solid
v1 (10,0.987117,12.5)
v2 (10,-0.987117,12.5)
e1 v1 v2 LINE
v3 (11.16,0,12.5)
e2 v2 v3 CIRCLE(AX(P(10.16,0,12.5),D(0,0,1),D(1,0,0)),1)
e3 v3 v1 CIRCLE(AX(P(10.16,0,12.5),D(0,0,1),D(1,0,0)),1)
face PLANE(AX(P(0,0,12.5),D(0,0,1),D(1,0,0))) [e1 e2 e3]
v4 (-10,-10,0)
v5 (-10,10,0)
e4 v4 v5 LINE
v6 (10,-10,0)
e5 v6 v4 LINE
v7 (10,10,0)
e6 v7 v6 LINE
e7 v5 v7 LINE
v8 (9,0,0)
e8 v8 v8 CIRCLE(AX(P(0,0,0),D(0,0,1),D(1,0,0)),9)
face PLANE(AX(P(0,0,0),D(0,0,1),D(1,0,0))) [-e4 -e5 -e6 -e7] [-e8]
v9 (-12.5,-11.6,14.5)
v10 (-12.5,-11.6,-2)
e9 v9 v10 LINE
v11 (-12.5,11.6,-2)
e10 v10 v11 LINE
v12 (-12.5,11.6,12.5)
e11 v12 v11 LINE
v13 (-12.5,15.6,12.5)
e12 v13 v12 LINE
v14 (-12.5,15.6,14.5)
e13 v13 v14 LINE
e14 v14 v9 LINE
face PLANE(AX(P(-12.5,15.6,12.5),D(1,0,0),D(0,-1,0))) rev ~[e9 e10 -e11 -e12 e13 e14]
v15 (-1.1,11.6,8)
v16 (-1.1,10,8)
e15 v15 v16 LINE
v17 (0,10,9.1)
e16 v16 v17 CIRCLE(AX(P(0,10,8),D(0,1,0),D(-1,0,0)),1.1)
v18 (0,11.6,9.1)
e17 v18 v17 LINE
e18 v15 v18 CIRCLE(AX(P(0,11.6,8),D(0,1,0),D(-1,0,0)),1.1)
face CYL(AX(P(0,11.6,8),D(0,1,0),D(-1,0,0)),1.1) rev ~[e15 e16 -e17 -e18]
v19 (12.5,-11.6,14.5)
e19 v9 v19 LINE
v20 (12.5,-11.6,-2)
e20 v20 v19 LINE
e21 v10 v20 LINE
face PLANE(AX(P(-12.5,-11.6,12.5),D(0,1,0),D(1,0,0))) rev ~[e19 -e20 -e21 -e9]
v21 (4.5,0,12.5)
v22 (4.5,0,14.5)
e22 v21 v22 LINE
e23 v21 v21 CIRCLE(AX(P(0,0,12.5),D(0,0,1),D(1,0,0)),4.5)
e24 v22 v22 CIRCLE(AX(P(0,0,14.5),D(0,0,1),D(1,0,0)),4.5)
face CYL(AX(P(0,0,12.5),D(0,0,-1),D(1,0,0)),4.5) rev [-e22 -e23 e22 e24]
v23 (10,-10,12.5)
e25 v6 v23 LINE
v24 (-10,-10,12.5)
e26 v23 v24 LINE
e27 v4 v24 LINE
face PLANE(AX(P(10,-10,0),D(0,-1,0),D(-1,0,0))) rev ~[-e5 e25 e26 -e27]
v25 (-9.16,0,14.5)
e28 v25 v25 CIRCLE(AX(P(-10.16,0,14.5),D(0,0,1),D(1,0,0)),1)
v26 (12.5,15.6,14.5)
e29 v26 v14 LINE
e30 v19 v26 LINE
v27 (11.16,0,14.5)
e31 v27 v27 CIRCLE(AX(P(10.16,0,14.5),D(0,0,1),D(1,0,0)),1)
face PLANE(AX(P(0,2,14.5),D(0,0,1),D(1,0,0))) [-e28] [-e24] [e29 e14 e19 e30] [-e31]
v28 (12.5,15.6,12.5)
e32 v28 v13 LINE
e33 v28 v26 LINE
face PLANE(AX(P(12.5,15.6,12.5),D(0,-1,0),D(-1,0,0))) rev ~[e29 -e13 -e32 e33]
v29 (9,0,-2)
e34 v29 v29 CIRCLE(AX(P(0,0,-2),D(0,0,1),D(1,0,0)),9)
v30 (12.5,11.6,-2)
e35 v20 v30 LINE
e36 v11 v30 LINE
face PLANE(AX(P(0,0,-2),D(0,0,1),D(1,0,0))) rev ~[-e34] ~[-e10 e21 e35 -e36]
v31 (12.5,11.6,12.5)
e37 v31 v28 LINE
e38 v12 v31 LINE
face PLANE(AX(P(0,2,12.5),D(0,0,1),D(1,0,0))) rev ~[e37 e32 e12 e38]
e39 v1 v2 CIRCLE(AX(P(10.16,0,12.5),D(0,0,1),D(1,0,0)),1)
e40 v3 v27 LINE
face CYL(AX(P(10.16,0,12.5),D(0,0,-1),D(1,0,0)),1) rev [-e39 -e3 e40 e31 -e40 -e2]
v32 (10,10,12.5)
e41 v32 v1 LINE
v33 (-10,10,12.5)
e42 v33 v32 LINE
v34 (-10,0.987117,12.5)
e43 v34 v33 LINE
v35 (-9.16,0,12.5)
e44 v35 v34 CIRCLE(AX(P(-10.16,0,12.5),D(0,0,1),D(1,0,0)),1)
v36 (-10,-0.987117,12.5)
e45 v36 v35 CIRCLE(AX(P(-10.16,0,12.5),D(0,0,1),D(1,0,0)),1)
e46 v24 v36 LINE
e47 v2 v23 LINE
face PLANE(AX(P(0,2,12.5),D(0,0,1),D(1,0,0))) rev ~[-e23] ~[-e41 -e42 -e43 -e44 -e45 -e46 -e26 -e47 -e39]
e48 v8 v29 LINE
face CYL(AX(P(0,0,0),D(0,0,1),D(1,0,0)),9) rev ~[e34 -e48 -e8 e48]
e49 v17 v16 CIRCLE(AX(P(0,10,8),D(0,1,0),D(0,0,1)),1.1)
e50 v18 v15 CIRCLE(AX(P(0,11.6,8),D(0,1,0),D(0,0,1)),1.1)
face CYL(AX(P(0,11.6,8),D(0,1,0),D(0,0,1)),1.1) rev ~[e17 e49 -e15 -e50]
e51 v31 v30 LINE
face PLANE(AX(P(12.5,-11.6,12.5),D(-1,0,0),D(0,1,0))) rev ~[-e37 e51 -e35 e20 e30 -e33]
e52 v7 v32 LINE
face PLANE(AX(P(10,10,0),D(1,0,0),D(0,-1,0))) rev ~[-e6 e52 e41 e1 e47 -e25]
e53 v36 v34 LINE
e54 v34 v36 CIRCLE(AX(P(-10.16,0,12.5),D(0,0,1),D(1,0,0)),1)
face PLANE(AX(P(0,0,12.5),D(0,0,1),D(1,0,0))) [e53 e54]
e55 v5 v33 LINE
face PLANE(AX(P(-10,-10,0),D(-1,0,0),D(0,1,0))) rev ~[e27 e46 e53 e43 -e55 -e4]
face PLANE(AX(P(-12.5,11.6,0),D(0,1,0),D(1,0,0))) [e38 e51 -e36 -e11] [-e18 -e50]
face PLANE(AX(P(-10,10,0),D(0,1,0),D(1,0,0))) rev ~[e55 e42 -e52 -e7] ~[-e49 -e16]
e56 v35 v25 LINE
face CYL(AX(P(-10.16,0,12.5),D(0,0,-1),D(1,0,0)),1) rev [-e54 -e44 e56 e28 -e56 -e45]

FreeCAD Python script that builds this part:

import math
import FreeCAD as App
import Part
import Sketcher

doc = App.newDocument("Part")
body = doc.addObject("PartDesign::Body", "Body")

sketch1 = body.newObject("Sketcher::SketchObject", "Sketch")
sketch1.AttachmentSupport = (doc.getObject("XY_Plane"), [""])
sketch1.MapMode = "FlatFace"
sketch1.addGeometry(Part.LineSegment(App.Vector(-12, 12, 0), App.Vector(-12, -12, 0)), False)
sketch1.addGeometry(Part.LineSegment(App.Vector(-12, -12, 0), App.Vector(12, -12, 0)), False)
sketch1.addGeometry(Part.LineSegment(App.Vector(12, -12, 0), App.Vector(12, 12, 0)), False)
sketch1.addGeometry(Part.LineSegment(App.Vector(12, 12, 0), App.Vector(-12, 12, 0)), False)
sketch1.addGeometry(Part.Circle(App.Vector(0, 0, 0), App.Vector(0, 0, 1), 9), False)
sketch1.addConstraint(Sketcher.Constraint("Coincident", 0, 2, 1, 1))
sketch1.addConstraint(Sketcher.Constraint("Coincident", 1, 2, 2, 1))
sketch1.addConstraint(Sketcher.Constraint("Coincident", 2, 2, 3, 1))
sketch1.addConstraint(Sketcher.Constraint("Coincident", 3, 2, 0, 1))
sketch1.addConstraint(Sketcher.Constraint("Vertical", 0))
sketch1.addConstraint(Sketcher.Constraint("Horizontal", 1))
sketch1.addConstraint(Sketcher.Constraint("Vertical", 2))
sketch1.addConstraint(Sketcher.Constraint("Horizontal", 3))
sketch1.addConstraint(Sketcher.Constraint("Coincident", 4, 3, -1, 1))
sketch1.addConstraint(Sketcher.Constraint("Symmetric", 0, 2, 2, 2, -1, 1))
sketch1.addConstraint(Sketcher.Constraint("Diameter", 4, 18.0))
sketch1.addConstraint(Sketcher.Constraint("DistanceX", 1, 1, 1, 2, 25.0))
sketch1.addConstraint(Sketcher.Constraint("DistanceY", 0, 2, 0, 1, 23.2))
pad1 = body.newObject("PartDesign::Pad", "Pad")
pad1.Profile = sketch1
pad1.Length = 2
pad1.Reversed = True

sketch2 = body.newObject("Sketcher::SketchObject", "Sketch001")
sketch2.AttachmentSupport = (doc.getObject("XY_Plane"), [""])
sketch2.MapMode = "FlatFace"
sketch2.addGeometry(Part.LineSegment(App.Vector(-12, 12, 0), App.Vector(-12, -12, 0)), False)
sketch2.addGeometry(Part.LineSegment(App.Vector(-12, -12, 0), App.Vector(12, -12, 0)), False)
sketch2.addGeometry(Part.LineSegment(App.Vector(12, -12, 0), App.Vector(12, 12, 0)), False)
sketch2.addGeometry(Part.LineSegment(App.Vector(12, 12, 0), App.Vector(-12, 12, 0)), False)
sketch2.addGeometry(Part.LineSegment(App.Vector(-10, 10, 0), App.Vector(10, 10, 0)), False)
sketch2.addGeometry(Part.LineSegment(App.Vector(10, 10, 0), App.Vector(10, -10, 0)), False)
sketch2.addGeometry(Part.LineSegment(App.Vector(10, -10, 0), App.Vector(-10, -10, 0)), False)
sketch2.addGeometry(Part.LineSegment(App.Vector(-10, -10, 0), App.Vector(-10, 10, 0)), False)
sketch2.addConstraint(Sketcher.Constraint("Coincident", 0, 2, 1, 1))
sketch2.addConstraint(Sketcher.Constraint("Coincident", 1, 2, 2, 1))
sketch2.addConstraint(Sketcher.Constraint("Coincident", 2, 2, 3, 1))
sketch2.addConstraint(Sketcher.Constraint("Coincident", 3, 2, 0, 1))
sketch2.addConstraint(Sketcher.Constraint("Coincident", 4, 2, 5, 1))
sketch2.addConstraint(Sketcher.Constraint("Coincident", 5, 2, 6, 1))
sketch2.addConstraint(Sketcher.Constraint("Coincident", 6, 2, 7, 1))
sketch2.addConstraint(Sketcher.Constraint("Coincident", 7, 2, 4, 1))
sketch2.addConstraint(Sketcher.Constraint("Vertical", 0))
sketch2.addConstraint(Sketcher.Constraint("Horizontal", 1))
sketch2.addConstraint(Sketcher.Constraint("Vertical", 2))
sketch2.addConstraint(Sketcher.Constraint("Horizontal", 3))
sketch2.addConstraint(Sketcher.Constraint("Horizontal", 4))
sketch2.addConstraint(Sketcher.Constraint("Vertical", 5))
sketch2.addConstraint(Sketcher.Constraint("Horizontal", 6))
sketch2.addConstraint(Sketcher.Constraint("Vertical", 7))
sketch2.addConstraint(Sketcher.Constraint("Symmetric", 0, 2, 2, 2, -1, 1))
sketch2.addConstraint(Sketcher.Constraint("Symmetric", 4, 2, 6, 2, -1, 1))
sketch2.addConstraint(Sketcher.Constraint("Equal", 6, 5))
sketch2.addConstraint(Sketcher.Constraint("DistanceX", 1, 1, 1, 2, 25.0))
sketch2.addConstraint(Sketcher.Constraint("DistanceX", 4, 1, 4, 2, 20.0))
sketch2.addConstraint(Sketcher.Constraint("DistanceY", 0, 2, 0, 1, 23.2))
pad2 = body.newObject("PartDesign::Pad", "Pad001")
pad2.Profile = sketch2
pad2.Length = 12.5

sketch3 = body.newObject("Sketcher::SketchObject", "Sketch002")
sketch3.AttachmentSupport = (doc.getObject("XZ_Plane"), [""])
sketch3.MapMode = "FlatFace"
sketch3.AttachmentOffset = App.Placement(App.Vector(0, 0, -11.6), App.Rotation())
sketch3.addGeometry(Part.ArcOfCircle(Part.Circle(App.Vector(0, 8, 0), App.Vector(0, 0, 1), 1.1), math.radians(180), math.radians(450)), False)
sketch3.addGeometry(Part.ArcOfCircle(Part.Circle(App.Vector(0, 8, 0), App.Vector(0, 0, 1), 1.1), math.radians(90), math.radians(180)), False)
sketch3.addConstraint(Sketcher.Constraint("Tangent", 0, 1, 1, 2))
sketch3.addConstraint(Sketcher.Constraint("Coincident", 1, 1, 0, 2))
sketch3.addConstraint(Sketcher.Constraint("PointOnObject", 0, 3, -2))
sketch3.addConstraint(Sketcher.Constraint("PointOnObject", 1, 1, -2))
sketch3.addConstraint(Sketcher.Constraint("Horizontal", 1, 3, 0, 1))
sketch3.addConstraint(Sketcher.Constraint("Radius", 0, 1.1))
sketch3.addConstraint(Sketcher.Constraint("DistanceY", -1, 1, 0, 3, 8.0))
pocket1 = body.newObject("PartDesign::Pocket", "Pocket")
pocket1.Profile = sketch3
pocket1.Length = 4
pocket1.Reversed = True

sketch4 = body.newObject("Sketcher::SketchObject", "Sketch003")
sketch4.AttachmentSupport = (doc.getObject("XY_Plane"), [""])
sketch4.MapMode = "FlatFace"
sketch4.AttachmentOffset = App.Placement(App.Vector(0, 0, 12.5), App.Rotation())
sketch4.addGeometry(Part.LineSegment(App.Vector(-12.5, -11.6, 0), App.Vector(12.5, -11.6, 0)), False)
sketch4.addGeometry(Part.LineSegment(App.Vector(12.5, -11.6, 0), App.Vector(12.5, 15.6, 0)), False)
sketch4.addGeometry(Part.LineSegment(App.Vector(12.5, 15.6, 0), App.Vector(-12.5, 15.6, 0)), False)
sketch4.addGeometry(Part.LineSegment(App.Vector(-12.5, 15.6, 0), App.Vector(-12.5, -11.6, 0)), False)
sketch4.addGeometry(Part.Circle(App.Vector(-10.2, 0, 0), App.Vector(0, 0, 1), 1), False)
sketch4.addGeometry(Part.Circle(App.Vector(0, 0, 0), App.Vector(0, 0, 1), 4.5), False)
sketch4.addGeometry(Part.Circle(App.Vector(10.2, 0, 0), App.Vector(0, 0, 1), 1), False)
sketch4.addConstraint(Sketcher.Constraint("Coincident", 0, 2, 1, 1))
sketch4.addConstraint(Sketcher.Constraint("Coincident", 1, 2, 2, 1))
sketch4.addConstraint(Sketcher.Constraint("Coincident", 2, 2, 3, 1))
sketch4.addConstraint(Sketcher.Constraint("Coincident", 3, 2, 0, 1))
sketch4.addConstraint(Sketcher.Constraint("Horizontal", 0))
sketch4.addConstraint(Sketcher.Constraint("Vertical", 1))
sketch4.addConstraint(Sketcher.Constraint("Horizontal", 2))
sketch4.addConstraint(Sketcher.Constraint("Vertical", 3))
sketch4.addConstraint(Sketcher.Constraint("Coincident", 5, 3, -1, 1))
sketch4.addConstraint(Sketcher.Constraint("Equal", 4, 6))
sketch4.addConstraint(Sketcher.Constraint("Symmetric", 4, 3, 6, 3, -1, 1))
sketch4.addConstraint(Sketcher.Constraint("PointOnObject", 4, 3, -1))
sketch4.addConstraint(Sketcher.Constraint("Diameter", 4, 2.0))
sketch4.addConstraint(Sketcher.Constraint("Diameter", 5, 9.0))
sketch4.addConstraint(Sketcher.Constraint("DistanceX", 0, 1, 0, 2, 25.0))
sketch4.addConstraint(Sketcher.Constraint("DistanceY", 1, 1, 1, 2, 27.2))
sketch4.addConstraint(Sketcher.Constraint("DistanceX", -1, 1, 0, 2, 12.5))
sketch4.addConstraint(Sketcher.Constraint("DistanceY", 0, 2, -1, 1, 11.6))
sketch4.addConstraint(Sketcher.Constraint("DistanceX", 4, 3, -1, 1, 10.16))
pad3 = body.newObject("PartDesign::Pad", "Pad002")
pad3.Profile = sketch4
pad3.Length = 2

doc.recompute()
